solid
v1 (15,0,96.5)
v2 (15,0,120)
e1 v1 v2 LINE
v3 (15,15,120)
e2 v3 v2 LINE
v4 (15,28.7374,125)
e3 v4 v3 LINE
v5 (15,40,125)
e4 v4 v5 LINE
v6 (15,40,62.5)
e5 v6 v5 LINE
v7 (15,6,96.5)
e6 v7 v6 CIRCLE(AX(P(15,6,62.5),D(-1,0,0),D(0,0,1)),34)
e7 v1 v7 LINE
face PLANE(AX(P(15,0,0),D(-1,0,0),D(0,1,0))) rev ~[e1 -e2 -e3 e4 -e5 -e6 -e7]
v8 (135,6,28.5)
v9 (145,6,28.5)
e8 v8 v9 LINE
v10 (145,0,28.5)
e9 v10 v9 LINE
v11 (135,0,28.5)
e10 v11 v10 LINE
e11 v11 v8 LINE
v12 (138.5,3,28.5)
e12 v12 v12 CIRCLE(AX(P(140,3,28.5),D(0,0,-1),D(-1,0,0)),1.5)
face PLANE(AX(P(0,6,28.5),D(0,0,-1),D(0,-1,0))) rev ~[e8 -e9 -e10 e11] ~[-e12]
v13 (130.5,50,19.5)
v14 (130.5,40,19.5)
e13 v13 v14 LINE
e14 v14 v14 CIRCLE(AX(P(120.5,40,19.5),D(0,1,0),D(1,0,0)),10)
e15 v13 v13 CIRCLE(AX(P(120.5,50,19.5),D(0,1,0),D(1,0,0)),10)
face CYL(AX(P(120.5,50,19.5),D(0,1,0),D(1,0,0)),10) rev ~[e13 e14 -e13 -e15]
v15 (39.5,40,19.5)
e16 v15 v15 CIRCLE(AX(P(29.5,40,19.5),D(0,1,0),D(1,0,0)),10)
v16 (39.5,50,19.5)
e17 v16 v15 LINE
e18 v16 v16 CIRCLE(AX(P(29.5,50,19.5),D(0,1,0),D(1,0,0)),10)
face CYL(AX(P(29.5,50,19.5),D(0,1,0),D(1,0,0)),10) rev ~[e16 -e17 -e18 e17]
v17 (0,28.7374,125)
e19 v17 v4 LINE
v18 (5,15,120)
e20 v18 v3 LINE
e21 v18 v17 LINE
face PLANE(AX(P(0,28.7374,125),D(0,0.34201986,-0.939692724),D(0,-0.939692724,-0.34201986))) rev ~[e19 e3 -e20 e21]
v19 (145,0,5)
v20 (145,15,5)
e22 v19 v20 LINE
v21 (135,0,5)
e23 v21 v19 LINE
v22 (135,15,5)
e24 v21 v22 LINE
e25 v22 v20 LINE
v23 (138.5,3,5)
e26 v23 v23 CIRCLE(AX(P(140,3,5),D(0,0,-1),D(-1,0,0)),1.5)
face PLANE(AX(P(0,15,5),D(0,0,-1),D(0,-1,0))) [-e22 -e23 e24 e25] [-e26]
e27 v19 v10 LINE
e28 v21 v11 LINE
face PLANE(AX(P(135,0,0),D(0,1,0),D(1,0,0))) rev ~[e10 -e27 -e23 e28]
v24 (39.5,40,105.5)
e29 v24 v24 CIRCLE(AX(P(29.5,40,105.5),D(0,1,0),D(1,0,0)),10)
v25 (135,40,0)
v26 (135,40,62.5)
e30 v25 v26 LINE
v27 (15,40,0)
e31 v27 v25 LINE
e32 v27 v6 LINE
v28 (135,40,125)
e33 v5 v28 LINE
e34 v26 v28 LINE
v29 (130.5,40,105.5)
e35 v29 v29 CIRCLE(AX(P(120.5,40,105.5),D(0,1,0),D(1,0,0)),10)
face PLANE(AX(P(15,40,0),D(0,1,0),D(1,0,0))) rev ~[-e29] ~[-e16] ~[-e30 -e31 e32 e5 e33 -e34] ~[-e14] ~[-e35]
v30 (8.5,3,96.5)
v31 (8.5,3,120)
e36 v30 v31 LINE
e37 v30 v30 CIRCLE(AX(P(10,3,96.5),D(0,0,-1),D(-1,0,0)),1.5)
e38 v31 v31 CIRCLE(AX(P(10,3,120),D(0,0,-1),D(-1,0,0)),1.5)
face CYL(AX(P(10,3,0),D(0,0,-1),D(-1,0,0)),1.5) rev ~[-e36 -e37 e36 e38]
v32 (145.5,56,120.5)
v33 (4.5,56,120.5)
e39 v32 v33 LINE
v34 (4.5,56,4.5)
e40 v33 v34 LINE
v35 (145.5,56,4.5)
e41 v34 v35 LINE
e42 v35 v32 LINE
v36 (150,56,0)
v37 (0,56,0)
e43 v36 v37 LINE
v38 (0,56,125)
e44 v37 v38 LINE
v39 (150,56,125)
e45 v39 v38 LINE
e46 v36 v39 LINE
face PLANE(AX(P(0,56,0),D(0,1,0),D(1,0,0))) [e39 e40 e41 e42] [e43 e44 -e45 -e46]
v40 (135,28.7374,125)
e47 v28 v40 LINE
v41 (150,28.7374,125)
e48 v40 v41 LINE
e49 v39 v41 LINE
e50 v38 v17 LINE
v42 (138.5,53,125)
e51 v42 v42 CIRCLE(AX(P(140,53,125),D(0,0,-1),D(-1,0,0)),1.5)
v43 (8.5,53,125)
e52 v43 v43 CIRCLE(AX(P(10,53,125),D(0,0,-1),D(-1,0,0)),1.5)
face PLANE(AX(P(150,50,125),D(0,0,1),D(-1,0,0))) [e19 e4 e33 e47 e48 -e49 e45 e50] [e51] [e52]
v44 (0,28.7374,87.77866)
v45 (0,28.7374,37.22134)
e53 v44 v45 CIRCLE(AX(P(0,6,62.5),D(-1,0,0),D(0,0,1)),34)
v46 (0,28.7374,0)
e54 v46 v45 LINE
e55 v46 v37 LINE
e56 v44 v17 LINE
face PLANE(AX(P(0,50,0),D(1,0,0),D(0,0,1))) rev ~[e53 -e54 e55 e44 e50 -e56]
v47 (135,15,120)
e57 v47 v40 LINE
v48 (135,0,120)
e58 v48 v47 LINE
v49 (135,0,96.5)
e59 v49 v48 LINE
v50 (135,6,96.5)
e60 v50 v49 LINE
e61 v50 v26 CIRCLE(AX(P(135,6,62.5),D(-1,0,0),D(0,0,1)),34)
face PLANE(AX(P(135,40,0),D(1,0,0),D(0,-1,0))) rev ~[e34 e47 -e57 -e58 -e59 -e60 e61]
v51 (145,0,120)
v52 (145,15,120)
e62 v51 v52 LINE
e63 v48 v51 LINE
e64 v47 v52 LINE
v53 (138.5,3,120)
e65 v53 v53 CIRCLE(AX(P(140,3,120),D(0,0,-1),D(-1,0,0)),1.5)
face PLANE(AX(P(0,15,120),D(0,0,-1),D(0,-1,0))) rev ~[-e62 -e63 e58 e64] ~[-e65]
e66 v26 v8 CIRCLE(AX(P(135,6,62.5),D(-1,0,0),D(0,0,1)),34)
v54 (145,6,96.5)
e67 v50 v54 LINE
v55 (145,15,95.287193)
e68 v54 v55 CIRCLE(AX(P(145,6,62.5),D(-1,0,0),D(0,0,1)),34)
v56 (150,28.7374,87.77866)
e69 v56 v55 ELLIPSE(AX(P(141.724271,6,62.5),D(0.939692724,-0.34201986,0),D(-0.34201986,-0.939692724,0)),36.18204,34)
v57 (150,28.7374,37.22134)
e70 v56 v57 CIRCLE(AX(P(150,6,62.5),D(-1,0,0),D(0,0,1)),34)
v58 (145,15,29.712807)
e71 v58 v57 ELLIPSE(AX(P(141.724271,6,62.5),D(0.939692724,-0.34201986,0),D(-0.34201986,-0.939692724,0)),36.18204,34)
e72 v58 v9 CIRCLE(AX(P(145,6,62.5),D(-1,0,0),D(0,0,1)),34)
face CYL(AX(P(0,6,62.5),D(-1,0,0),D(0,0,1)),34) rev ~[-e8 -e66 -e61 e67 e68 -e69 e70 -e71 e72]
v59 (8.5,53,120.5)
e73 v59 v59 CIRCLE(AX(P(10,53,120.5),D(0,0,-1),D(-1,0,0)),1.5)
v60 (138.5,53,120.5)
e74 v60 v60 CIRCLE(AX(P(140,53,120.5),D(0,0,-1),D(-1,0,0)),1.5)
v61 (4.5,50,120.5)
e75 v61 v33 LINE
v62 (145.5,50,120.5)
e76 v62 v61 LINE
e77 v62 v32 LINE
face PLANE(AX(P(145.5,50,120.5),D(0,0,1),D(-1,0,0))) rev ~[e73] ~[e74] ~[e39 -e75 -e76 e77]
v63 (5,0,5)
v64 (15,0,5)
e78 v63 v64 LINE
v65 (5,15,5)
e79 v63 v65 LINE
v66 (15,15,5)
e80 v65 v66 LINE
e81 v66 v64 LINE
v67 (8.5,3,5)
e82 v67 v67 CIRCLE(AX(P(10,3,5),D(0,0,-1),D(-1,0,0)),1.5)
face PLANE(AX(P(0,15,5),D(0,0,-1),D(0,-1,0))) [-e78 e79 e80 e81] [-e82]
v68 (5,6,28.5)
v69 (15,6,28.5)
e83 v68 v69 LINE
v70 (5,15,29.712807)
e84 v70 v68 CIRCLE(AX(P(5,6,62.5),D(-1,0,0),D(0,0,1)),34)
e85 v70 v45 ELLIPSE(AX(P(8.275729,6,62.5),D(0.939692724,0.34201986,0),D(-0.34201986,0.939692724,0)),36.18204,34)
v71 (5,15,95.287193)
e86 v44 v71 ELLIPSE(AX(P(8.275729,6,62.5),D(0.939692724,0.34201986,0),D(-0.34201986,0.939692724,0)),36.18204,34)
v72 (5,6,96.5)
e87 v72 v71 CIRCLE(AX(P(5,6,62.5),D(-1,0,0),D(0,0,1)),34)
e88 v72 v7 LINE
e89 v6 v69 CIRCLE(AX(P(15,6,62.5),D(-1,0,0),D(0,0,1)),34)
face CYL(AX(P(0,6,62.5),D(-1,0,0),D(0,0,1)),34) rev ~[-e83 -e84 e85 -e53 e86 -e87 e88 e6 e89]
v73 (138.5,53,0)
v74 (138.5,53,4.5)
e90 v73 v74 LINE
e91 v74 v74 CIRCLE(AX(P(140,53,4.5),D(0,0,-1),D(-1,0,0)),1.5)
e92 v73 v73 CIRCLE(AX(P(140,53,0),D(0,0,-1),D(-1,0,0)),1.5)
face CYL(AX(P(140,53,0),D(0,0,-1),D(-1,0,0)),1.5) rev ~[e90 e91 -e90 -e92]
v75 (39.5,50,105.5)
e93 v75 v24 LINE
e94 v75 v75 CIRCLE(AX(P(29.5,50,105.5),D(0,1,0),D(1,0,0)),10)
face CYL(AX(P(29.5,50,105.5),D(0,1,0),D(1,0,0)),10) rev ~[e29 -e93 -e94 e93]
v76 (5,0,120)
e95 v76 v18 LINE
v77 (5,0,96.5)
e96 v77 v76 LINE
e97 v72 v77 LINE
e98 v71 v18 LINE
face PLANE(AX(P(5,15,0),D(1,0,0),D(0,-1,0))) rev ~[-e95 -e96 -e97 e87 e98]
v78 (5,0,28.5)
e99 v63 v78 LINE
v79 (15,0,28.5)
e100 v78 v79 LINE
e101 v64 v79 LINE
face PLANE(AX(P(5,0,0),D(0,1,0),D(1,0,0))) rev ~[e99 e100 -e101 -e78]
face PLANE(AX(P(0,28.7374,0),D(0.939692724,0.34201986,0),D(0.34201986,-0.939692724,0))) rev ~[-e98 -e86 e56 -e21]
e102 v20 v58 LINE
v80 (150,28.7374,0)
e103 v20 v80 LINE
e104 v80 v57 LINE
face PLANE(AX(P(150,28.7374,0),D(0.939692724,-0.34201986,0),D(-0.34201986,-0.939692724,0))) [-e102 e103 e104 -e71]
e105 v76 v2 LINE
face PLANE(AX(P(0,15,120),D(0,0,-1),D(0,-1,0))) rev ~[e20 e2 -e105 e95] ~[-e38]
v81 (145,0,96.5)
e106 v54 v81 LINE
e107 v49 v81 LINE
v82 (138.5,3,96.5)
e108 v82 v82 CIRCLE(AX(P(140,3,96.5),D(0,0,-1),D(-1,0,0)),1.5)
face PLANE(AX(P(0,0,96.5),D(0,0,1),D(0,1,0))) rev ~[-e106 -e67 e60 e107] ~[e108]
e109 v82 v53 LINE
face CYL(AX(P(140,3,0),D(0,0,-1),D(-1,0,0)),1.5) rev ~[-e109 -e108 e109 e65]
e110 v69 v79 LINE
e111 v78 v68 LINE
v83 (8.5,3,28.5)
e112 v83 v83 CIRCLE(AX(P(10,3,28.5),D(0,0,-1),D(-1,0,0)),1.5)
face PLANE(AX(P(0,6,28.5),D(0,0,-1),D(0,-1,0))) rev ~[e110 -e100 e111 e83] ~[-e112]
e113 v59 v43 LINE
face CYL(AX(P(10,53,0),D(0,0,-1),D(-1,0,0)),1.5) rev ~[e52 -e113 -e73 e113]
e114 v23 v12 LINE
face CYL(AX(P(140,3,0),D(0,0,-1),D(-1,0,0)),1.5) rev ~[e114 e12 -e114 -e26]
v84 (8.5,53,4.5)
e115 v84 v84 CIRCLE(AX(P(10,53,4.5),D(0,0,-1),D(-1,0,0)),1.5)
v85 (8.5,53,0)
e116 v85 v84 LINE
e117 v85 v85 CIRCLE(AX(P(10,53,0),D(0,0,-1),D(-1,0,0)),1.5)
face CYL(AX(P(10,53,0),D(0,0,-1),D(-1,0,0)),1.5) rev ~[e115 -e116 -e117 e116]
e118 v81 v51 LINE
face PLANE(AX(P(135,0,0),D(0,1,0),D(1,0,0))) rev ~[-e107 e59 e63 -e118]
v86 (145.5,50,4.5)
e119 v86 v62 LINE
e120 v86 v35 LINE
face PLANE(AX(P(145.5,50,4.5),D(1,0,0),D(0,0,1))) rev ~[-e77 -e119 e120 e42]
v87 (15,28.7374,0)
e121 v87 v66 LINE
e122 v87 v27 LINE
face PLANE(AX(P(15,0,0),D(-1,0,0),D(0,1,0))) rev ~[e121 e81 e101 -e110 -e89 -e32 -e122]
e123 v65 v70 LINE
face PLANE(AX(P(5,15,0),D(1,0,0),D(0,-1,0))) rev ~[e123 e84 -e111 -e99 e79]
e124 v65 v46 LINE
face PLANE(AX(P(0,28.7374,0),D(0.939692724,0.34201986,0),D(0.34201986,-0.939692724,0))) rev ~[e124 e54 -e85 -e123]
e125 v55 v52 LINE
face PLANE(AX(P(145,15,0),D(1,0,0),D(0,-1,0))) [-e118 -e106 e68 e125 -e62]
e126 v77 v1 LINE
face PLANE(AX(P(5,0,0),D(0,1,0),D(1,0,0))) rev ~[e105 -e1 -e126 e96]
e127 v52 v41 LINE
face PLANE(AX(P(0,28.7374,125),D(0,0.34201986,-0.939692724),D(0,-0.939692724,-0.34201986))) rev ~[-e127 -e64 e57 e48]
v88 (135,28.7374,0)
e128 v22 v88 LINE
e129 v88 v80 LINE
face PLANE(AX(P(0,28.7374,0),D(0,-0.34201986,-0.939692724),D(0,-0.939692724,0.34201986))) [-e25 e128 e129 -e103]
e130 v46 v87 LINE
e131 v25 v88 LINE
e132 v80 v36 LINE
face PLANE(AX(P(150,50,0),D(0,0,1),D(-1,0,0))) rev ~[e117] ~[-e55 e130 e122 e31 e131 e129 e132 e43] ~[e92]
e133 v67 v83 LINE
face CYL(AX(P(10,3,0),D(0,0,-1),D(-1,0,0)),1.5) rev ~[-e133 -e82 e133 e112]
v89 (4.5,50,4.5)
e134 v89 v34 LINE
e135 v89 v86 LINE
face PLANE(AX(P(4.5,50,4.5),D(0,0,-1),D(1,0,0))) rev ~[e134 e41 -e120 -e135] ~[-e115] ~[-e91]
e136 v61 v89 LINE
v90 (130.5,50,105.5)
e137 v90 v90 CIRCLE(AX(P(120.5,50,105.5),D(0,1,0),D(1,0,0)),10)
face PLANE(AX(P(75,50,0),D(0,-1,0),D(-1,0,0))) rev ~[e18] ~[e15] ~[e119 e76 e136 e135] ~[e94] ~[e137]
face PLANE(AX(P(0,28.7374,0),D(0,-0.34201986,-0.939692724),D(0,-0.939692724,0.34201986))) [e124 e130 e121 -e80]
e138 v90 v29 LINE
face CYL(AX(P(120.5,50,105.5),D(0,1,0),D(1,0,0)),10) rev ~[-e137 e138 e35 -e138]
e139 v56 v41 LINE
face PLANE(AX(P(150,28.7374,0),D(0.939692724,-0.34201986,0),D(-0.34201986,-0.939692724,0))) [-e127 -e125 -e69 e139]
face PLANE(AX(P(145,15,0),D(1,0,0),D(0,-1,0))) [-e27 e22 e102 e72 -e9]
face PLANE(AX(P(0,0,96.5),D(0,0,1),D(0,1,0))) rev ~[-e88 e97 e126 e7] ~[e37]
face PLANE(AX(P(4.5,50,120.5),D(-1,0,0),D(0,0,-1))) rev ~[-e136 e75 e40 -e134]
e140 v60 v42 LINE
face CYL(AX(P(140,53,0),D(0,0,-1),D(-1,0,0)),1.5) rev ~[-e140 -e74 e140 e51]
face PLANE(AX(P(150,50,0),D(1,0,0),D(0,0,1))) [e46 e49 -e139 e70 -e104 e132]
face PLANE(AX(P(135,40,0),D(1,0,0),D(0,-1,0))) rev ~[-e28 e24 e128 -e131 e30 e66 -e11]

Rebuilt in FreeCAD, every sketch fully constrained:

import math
import FreeCAD as App
import Part
import Sketcher
from FreeCAD import Vector
Q = App.Units.Quantity


def add_polygon(sketch, points):
    """Adds a closed chain of lines whose ends are joined by coincident constraints."""
    first, n = sketch.GeometryCount, len(points)
    for a, b in zip(points, points[1:] + points[:1]):
        sketch.addGeometry(Part.LineSegment(App.Vector(*a, 0), App.Vector(*b, 0)), False)
    for i in range(n):
        sketch.addConstraint(Sketcher.Constraint("Coincident", first + i, 2, first + (i + 1) % n, 1))

doc = App.newDocument("Part")
body = doc.addObject("PartDesign::Body", "Body")

# Sketch on XY plane
sketch1 = doc.addObject("Sketcher::SketchObject", "Sketch")
body.addObject(sketch1)
sketch1.AttachmentSupport = (doc.XY_Plane, [""])
sketch1.MapMode = "FlatFace"
add_polygon(sketch1, [(5, 15), (5, 0), (15, 0), (15, 40), (135, 40), (135, 0), (145, 0), (145, 15), (150, 28.7374), (150, 50), (0, 50), (0, 28.7374)])  # lines 0-11
sketch1.addConstraint(Sketcher.Constraint("Vertical", 0))
sketch1.addConstraint(Sketcher.Constraint("Horizontal", 1))
sketch1.addConstraint(Sketcher.Constraint("Vertical", 2))
sketch1.addConstraint(Sketcher.Constraint("Horizontal", 3))
sketch1.addConstraint(Sketcher.Constraint("Vertical", 4))
sketch1.addConstraint(Sketcher.Constraint("Horizontal", 5))
sketch1.addConstraint(Sketcher.Constraint("Vertical", 6))
sketch1.addConstraint(Sketcher.Constraint("Vertical", 8))
sketch1.addConstraint(Sketcher.Constraint("Horizontal", 9))
sketch1.addConstraint(Sketcher.Constraint("Vertical", 10))
sketch1.addConstraint(Sketcher.Constraint("PointOnObject", 0, 2, -1))
sketch1.addConstraint(Sketcher.Constraint("PointOnObject", 4, 2, -1))
sketch1.addConstraint(Sketcher.Constraint("PointOnObject", 9, 2, -2))
sketch1.addConstraint(Sketcher.Constraint("Horizontal", 7, 2, 10, 2))
sketch1.addConstraint(Sketcher.Constraint("Horizontal", 6, 2, 11, 2))
sketch1.addConstraint(Sketcher.Constraint("Equal", 1, 5))
sketch1.addConstraint(Sketcher.Constraint("Equal", 7, 11))
sketch1.addConstraint(Sketcher.Constraint("DistanceX", 1, 1, 1, 2, 10.0))
sketch1.addConstraint(Sketcher.Constraint("DistanceX", 9, 2, 9, 1, 150.0))
sketch1.addConstraint(Sketcher.Constraint("DistanceY", 0, 2, 0, 1, 15.0))
sketch1.addConstraint(Sketcher.Constraint("DistanceX", -1, 1, 1, 2, 15.0))
sketch1.addConstraint(Sketcher.Constraint("DistanceY", -1, 1, 8, 2, 50.0))
sketch1.addConstraint(Sketcher.Constraint("DistanceY", 3, 2, 8, 2, 10.0))
sketch1.addConstraint(Sketcher.Constraint("Angle", 7, Q("70 deg")))
pad1 = doc.addObject("PartDesign::Pad", "Pad")
body.addObject(pad1)
pad1.Profile = sketch1
pad1.Length = 125

# Sketch on YZ plane
sketch2 = doc.addObject("Sketcher::SketchObject", "Sketch001")
body.addObject(sketch2)
sketch2.AttachmentSupport = (doc.YZ_Plane, [""])
sketch2.MapMode = "FlatFace"
add_polygon(sketch2, [(15, 5), (28.7374, 0), (0, 0), (0, 5)])  # lines 0-3
add_polygon(sketch2, [(0, 125), (28.7374, 125), (15, 120), (0, 120)])  # lines 4-7
sketch2.addConstraint(Sketcher.Constraint("Horizontal", 1))
sketch2.addConstraint(Sketcher.Constraint("Vertical", 2))
sketch2.addConstraint(Sketcher.Constraint("Horizontal", 3))
sketch2.addConstraint(Sketcher.Constraint("Horizontal", 4))
sketch2.addConstraint(Sketcher.Constraint("Horizontal", 6))
sketch2.addConstraint(Sketcher.Constraint("Vertical", 7))
sketch2.addConstraint(Sketcher.Constraint("Coincident", 1, 2, -1, 1))
sketch2.addConstraint(Sketcher.Constraint("PointOnObject", 6, 2, -2))
sketch2.addConstraint(Sketcher.Constraint("Vertical", 0, 2, 4, 2))
sketch2.addConstraint(Sketcher.Constraint("Vertical", 3, 2, 5, 2))
sketch2.addConstraint(Sketcher.Constraint("Equal", 2, 7))
sketch2.addConstraint(Sketcher.Constraint("DistanceX", 3, 1, 3, 2, 15.0))
sketch2.addConstraint(Sketcher.Constraint("Angle", 5, Q("-160 deg")))
sketch2.addConstraint(Sketcher.Constraint("DistanceY", 2, 1, 2, 2, 5.0))
sketch2.addConstraint(Sketcher.Constraint("DistanceY", -1, 1, 4, 2, 125.0))
pocket1 = doc.addObject("PartDesign::Pocket", "Pocket")
body.addObject(pocket1)
pocket1.Profile = sketch2
pocket1.Type = "ThroughAll"
pocket1.Reversed = True

# Sketch on XZ plane
sketch3 = doc.addObject("Sketcher::SketchObject", "Sketch002")
body.addObject(sketch3)
sketch3.AttachmentSupport = (doc.XZ_Plane, [""])
sketch3.MapMode = "FlatFace"
sketch3.AttachmentOffset = App.Placement(Vector(0, 0, -50), App.Rotation())
add_polygon(sketch3, [(150, 125), (150, 0), (0, 0), (0, 125)])  # lines 0-3
add_polygon(sketch3, [(4.5, 120.5), (4.5, 4.5), (145.5, 4.5), (145.5, 120.5)])  # lines 4-7
sketch3.addConstraint(Sketcher.Constraint("Vertical", 0))
sketch3.addConstraint(Sketcher.Constraint("Horizontal", 1))
sketch3.addConstraint(Sketcher.Constraint("Vertical", 2))
sketch3.addConstraint(Sketcher.Constraint("Horizontal", 3))
sketch3.addConstraint(Sketcher.Constraint("Vertical", 4))
sketch3.addConstraint(Sketcher.Constraint("Horizontal", 5))
sketch3.addConstraint(Sketcher.Constraint("Vertical", 6))
sketch3.addConstraint(Sketcher.Constraint("Horizontal", 7))
sketch3.addConstraint(Sketcher.Constraint("Coincident", 1, 2, -1, 1))
sketch3.addConstraint(Sketcher.Constraint("DistanceX", -1, 1, 4, 2, 4.5))
sketch3.addConstraint(Sketcher.Constraint("DistanceY", -1, 1, 4, 2, 4.5))
sketch3.addConstraint(Sketcher.Constraint("DistanceX", 5, 2, 0, 2, 4.5))
sketch3.addConstraint(Sketcher.Constraint("DistanceY", 6, 2, 3, 2, 4.5))
sketch3.addConstraint(Sketcher.Constraint("DistanceX", 1, 2, 1, 1, 150.0))
sketch3.addConstraint(Sketcher.Constraint("DistanceY", 0, 2, 0, 1, 125.0))
pad2 = doc.addObject("PartDesign::Pad", "Pad001")
body.addObject(pad2)
pad2.Profile = sketch3
pad2.Length = 6
pad2.Reversed = True

# Sketch on XZ plane
sketch4 = doc.addObject("Sketcher::SketchObject", "Sketch003")
body.addObject(sketch4)
sketch4.AttachmentSupport = (doc.XZ_Plane, [""])
sketch4.MapMode = "FlatFace"
sketch4.AttachmentOffset = App.Placement(Vector(0, 0, -50), App.Rotation())
sketch4.addGeometry(Part.Circle(Vector(29.5, 19.5, 0), Vector(0, 0, 1), 10), False)
sketch4.addGeometry(Part.Circle(Vector(29.5, 105.5, 0), Vector(0, 0, 1), 10), False)
sketch4.addGeometry(Part.Circle(Vector(120.5, 19.5, 0), Vector(0, 0, 1), 10), False)
sketch4.addGeometry(Part.Circle(Vector(120.5, 105.5, 0), Vector(0, 0, 1), 10), False)
sketch4.addConstraint(Sketcher.Constraint("Equal", 0, 1))
sketch4.addConstraint(Sketcher.Constraint("Equal", 1, 2))
sketch4.addConstraint(Sketcher.Constraint("Equal", 2, 3))
sketch4.addConstraint(Sketcher.Constraint("Horizontal", 0, 3, 2, 3))
sketch4.addConstraint(Sketcher.Constraint("Horizontal", 1, 3, 3, 3))
sketch4.addConstraint(Sketcher.Constraint("Vertical", 0, 3, 1, 3))
sketch4.addConstraint(Sketcher.Constraint("Vertical", 2, 3, 3, 3))
sketch4.addConstraint(Sketcher.Constraint("Diameter", 0, 20.0))
sketch4.addConstraint(Sketcher.Constraint("DistanceY", 0, 3, 1, 3, 86.0))
sketch4.addConstraint(Sketcher.Constraint("DistanceX", 0, 3, 2, 3, 91.0))
sketch4.addConstraint(Sketcher.Constraint("DistanceX", -1, 1, 0, 3, 29.5))
sketch4.addConstraint(Sketcher.Constraint("DistanceY", -1, 1, 0, 3, 19.5))
pocket2 = doc.addObject("PartDesign::Pocket", "Pocket001")
body.addObject(pocket2)
pocket2.Profile = sketch4
pocket2.Type = "ThroughAll"
pocket2.Reversed = True

# Sketch on XY plane
sketch5 = doc.addObject("Sketcher::SketchObject", "Sketch004")
body.addObject(sketch5)
sketch5.AttachmentSupport = (doc.XY_Plane, [""])
sketch5.MapMode = "FlatFace"
sketch5.addGeometry(Part.Circle(Vector(140, 53, 0), Vector(0, 0, 1), 1.5), False)
sketch5.addGeometry(Part.Circle(Vector(10, 53, 0), Vector(0, 0, 1), 1.5), False)
sketch5.addGeometry(Part.Circle(Vector(140, 3, 0), Vector(0, 0, 1), 1.5), False)
sketch5.addGeometry(Part.Circle(Vector(10, 3, 0), Vector(0, 0, 1), 1.5), False)
sketch5.addConstraint(Sketcher.Constraint("Equal", 0, 1))
sketch5.addConstraint(Sketcher.Constraint("Equal", 1, 2))
sketch5.addConstraint(Sketcher.Constraint("Equal", 2, 3))
sketch5.addConstraint(Sketcher.Constraint("Horizontal", 0, 3, 1, 3))
sketch5.addConstraint(Sketcher.Constraint("Horizontal", 2, 3, 3, 3))
sketch5.addConstraint(Sketcher.Constraint("Vertical", 0, 3, 2, 3))
sketch5.addConstraint(Sketcher.Constraint("Vertical", 1, 3, 3, 3))
sketch5.addConstraint(Sketcher.Constraint("Diameter", 0, 3.0))
sketch5.addConstraint(Sketcher.Constraint("DistanceY", -1, 1, 2, 3, 3.0))
sketch5.addConstraint(Sketcher.Constraint("DistanceX", -1, 1, 0, 3, 140.0))
sketch5.addConstraint(Sketcher.Constraint("DistanceY", -1, 1, 0, 3, 53.0))
sketch5.addConstraint(Sketcher.Constraint("DistanceX", -1, 1, 1, 3, 10.0))
pocket3 = doc.addObject("PartDesign::Pocket", "Pocket002")
body.addObject(pocket3)
pocket3.Profile = sketch5
pocket3.Type = "ThroughAll"
pocket3.Reversed = True

# Sketch on YZ plane
sketch6 = doc.addObject("Sketcher::SketchObject", "Sketch005")
body.addObject(sketch6)
sketch6.AttachmentSupport = (doc.YZ_Plane, [""])
sketch6.MapMode = "FlatFace"
sketch6.addGeometry(Part.LineSegment(Vector(0, 96.5, 0), Vector(6, 96.5, 0)), False)
sketch6.addGeometry(Part.ArcOfCircle(Part.Circle(Vector(6, 62.5, 0), Vector(0, 0, 1), 34), math.radians(-90), math.radians(90)), False)
sketch6.addGeometry(Part.LineSegment(Vector(6, 28.5, 0), Vector(0, 28.5, 0)), False)
sketch6.addGeometry(Part.LineSegment(Vector(0, 28.5, 0), Vector(0, 96.5, 0)), False)
sketch6.addConstraint(Sketcher.Constraint("Tangent", 0, 2, 1, 2))
sketch6.addConstraint(Sketcher.Constraint("Tangent", 1, 1, 2, 1))
sketch6.addConstraint(Sketcher.Constraint("Coincident", 2, 2, 3, 1))
sketch6.addConstraint(Sketcher.Constraint("Coincident", 3, 2, 0, 1))
sketch6.addConstraint(Sketcher.Constraint("Horizontal", 0))
sketch6.addConstraint(Sketcher.Constraint("Horizontal", 2))
sketch6.addConstraint(Sketcher.Constraint("Vertical", 3))
sketch6.addConstraint(Sketcher.Constraint("PointOnObject", 2, 2, -2))
sketch6.addConstraint(Sketcher.Constraint("Radius", 1, 34.0))
sketch6.addConstraint(Sketcher.Constraint("DistanceX", 0, 1, 0, 2, 6.0))
sketch6.addConstraint(Sketcher.Constraint("DistanceY", -1, 1, 1, 3, 62.5))
pocket4 = doc.addObject("PartDesign::Pocket", "Pocket003")
body.addObject(pocket4)
pocket4.Profile = sketch6
pocket4.Type = "ThroughAll"
pocket4.Reversed = True

doc.recompute()
